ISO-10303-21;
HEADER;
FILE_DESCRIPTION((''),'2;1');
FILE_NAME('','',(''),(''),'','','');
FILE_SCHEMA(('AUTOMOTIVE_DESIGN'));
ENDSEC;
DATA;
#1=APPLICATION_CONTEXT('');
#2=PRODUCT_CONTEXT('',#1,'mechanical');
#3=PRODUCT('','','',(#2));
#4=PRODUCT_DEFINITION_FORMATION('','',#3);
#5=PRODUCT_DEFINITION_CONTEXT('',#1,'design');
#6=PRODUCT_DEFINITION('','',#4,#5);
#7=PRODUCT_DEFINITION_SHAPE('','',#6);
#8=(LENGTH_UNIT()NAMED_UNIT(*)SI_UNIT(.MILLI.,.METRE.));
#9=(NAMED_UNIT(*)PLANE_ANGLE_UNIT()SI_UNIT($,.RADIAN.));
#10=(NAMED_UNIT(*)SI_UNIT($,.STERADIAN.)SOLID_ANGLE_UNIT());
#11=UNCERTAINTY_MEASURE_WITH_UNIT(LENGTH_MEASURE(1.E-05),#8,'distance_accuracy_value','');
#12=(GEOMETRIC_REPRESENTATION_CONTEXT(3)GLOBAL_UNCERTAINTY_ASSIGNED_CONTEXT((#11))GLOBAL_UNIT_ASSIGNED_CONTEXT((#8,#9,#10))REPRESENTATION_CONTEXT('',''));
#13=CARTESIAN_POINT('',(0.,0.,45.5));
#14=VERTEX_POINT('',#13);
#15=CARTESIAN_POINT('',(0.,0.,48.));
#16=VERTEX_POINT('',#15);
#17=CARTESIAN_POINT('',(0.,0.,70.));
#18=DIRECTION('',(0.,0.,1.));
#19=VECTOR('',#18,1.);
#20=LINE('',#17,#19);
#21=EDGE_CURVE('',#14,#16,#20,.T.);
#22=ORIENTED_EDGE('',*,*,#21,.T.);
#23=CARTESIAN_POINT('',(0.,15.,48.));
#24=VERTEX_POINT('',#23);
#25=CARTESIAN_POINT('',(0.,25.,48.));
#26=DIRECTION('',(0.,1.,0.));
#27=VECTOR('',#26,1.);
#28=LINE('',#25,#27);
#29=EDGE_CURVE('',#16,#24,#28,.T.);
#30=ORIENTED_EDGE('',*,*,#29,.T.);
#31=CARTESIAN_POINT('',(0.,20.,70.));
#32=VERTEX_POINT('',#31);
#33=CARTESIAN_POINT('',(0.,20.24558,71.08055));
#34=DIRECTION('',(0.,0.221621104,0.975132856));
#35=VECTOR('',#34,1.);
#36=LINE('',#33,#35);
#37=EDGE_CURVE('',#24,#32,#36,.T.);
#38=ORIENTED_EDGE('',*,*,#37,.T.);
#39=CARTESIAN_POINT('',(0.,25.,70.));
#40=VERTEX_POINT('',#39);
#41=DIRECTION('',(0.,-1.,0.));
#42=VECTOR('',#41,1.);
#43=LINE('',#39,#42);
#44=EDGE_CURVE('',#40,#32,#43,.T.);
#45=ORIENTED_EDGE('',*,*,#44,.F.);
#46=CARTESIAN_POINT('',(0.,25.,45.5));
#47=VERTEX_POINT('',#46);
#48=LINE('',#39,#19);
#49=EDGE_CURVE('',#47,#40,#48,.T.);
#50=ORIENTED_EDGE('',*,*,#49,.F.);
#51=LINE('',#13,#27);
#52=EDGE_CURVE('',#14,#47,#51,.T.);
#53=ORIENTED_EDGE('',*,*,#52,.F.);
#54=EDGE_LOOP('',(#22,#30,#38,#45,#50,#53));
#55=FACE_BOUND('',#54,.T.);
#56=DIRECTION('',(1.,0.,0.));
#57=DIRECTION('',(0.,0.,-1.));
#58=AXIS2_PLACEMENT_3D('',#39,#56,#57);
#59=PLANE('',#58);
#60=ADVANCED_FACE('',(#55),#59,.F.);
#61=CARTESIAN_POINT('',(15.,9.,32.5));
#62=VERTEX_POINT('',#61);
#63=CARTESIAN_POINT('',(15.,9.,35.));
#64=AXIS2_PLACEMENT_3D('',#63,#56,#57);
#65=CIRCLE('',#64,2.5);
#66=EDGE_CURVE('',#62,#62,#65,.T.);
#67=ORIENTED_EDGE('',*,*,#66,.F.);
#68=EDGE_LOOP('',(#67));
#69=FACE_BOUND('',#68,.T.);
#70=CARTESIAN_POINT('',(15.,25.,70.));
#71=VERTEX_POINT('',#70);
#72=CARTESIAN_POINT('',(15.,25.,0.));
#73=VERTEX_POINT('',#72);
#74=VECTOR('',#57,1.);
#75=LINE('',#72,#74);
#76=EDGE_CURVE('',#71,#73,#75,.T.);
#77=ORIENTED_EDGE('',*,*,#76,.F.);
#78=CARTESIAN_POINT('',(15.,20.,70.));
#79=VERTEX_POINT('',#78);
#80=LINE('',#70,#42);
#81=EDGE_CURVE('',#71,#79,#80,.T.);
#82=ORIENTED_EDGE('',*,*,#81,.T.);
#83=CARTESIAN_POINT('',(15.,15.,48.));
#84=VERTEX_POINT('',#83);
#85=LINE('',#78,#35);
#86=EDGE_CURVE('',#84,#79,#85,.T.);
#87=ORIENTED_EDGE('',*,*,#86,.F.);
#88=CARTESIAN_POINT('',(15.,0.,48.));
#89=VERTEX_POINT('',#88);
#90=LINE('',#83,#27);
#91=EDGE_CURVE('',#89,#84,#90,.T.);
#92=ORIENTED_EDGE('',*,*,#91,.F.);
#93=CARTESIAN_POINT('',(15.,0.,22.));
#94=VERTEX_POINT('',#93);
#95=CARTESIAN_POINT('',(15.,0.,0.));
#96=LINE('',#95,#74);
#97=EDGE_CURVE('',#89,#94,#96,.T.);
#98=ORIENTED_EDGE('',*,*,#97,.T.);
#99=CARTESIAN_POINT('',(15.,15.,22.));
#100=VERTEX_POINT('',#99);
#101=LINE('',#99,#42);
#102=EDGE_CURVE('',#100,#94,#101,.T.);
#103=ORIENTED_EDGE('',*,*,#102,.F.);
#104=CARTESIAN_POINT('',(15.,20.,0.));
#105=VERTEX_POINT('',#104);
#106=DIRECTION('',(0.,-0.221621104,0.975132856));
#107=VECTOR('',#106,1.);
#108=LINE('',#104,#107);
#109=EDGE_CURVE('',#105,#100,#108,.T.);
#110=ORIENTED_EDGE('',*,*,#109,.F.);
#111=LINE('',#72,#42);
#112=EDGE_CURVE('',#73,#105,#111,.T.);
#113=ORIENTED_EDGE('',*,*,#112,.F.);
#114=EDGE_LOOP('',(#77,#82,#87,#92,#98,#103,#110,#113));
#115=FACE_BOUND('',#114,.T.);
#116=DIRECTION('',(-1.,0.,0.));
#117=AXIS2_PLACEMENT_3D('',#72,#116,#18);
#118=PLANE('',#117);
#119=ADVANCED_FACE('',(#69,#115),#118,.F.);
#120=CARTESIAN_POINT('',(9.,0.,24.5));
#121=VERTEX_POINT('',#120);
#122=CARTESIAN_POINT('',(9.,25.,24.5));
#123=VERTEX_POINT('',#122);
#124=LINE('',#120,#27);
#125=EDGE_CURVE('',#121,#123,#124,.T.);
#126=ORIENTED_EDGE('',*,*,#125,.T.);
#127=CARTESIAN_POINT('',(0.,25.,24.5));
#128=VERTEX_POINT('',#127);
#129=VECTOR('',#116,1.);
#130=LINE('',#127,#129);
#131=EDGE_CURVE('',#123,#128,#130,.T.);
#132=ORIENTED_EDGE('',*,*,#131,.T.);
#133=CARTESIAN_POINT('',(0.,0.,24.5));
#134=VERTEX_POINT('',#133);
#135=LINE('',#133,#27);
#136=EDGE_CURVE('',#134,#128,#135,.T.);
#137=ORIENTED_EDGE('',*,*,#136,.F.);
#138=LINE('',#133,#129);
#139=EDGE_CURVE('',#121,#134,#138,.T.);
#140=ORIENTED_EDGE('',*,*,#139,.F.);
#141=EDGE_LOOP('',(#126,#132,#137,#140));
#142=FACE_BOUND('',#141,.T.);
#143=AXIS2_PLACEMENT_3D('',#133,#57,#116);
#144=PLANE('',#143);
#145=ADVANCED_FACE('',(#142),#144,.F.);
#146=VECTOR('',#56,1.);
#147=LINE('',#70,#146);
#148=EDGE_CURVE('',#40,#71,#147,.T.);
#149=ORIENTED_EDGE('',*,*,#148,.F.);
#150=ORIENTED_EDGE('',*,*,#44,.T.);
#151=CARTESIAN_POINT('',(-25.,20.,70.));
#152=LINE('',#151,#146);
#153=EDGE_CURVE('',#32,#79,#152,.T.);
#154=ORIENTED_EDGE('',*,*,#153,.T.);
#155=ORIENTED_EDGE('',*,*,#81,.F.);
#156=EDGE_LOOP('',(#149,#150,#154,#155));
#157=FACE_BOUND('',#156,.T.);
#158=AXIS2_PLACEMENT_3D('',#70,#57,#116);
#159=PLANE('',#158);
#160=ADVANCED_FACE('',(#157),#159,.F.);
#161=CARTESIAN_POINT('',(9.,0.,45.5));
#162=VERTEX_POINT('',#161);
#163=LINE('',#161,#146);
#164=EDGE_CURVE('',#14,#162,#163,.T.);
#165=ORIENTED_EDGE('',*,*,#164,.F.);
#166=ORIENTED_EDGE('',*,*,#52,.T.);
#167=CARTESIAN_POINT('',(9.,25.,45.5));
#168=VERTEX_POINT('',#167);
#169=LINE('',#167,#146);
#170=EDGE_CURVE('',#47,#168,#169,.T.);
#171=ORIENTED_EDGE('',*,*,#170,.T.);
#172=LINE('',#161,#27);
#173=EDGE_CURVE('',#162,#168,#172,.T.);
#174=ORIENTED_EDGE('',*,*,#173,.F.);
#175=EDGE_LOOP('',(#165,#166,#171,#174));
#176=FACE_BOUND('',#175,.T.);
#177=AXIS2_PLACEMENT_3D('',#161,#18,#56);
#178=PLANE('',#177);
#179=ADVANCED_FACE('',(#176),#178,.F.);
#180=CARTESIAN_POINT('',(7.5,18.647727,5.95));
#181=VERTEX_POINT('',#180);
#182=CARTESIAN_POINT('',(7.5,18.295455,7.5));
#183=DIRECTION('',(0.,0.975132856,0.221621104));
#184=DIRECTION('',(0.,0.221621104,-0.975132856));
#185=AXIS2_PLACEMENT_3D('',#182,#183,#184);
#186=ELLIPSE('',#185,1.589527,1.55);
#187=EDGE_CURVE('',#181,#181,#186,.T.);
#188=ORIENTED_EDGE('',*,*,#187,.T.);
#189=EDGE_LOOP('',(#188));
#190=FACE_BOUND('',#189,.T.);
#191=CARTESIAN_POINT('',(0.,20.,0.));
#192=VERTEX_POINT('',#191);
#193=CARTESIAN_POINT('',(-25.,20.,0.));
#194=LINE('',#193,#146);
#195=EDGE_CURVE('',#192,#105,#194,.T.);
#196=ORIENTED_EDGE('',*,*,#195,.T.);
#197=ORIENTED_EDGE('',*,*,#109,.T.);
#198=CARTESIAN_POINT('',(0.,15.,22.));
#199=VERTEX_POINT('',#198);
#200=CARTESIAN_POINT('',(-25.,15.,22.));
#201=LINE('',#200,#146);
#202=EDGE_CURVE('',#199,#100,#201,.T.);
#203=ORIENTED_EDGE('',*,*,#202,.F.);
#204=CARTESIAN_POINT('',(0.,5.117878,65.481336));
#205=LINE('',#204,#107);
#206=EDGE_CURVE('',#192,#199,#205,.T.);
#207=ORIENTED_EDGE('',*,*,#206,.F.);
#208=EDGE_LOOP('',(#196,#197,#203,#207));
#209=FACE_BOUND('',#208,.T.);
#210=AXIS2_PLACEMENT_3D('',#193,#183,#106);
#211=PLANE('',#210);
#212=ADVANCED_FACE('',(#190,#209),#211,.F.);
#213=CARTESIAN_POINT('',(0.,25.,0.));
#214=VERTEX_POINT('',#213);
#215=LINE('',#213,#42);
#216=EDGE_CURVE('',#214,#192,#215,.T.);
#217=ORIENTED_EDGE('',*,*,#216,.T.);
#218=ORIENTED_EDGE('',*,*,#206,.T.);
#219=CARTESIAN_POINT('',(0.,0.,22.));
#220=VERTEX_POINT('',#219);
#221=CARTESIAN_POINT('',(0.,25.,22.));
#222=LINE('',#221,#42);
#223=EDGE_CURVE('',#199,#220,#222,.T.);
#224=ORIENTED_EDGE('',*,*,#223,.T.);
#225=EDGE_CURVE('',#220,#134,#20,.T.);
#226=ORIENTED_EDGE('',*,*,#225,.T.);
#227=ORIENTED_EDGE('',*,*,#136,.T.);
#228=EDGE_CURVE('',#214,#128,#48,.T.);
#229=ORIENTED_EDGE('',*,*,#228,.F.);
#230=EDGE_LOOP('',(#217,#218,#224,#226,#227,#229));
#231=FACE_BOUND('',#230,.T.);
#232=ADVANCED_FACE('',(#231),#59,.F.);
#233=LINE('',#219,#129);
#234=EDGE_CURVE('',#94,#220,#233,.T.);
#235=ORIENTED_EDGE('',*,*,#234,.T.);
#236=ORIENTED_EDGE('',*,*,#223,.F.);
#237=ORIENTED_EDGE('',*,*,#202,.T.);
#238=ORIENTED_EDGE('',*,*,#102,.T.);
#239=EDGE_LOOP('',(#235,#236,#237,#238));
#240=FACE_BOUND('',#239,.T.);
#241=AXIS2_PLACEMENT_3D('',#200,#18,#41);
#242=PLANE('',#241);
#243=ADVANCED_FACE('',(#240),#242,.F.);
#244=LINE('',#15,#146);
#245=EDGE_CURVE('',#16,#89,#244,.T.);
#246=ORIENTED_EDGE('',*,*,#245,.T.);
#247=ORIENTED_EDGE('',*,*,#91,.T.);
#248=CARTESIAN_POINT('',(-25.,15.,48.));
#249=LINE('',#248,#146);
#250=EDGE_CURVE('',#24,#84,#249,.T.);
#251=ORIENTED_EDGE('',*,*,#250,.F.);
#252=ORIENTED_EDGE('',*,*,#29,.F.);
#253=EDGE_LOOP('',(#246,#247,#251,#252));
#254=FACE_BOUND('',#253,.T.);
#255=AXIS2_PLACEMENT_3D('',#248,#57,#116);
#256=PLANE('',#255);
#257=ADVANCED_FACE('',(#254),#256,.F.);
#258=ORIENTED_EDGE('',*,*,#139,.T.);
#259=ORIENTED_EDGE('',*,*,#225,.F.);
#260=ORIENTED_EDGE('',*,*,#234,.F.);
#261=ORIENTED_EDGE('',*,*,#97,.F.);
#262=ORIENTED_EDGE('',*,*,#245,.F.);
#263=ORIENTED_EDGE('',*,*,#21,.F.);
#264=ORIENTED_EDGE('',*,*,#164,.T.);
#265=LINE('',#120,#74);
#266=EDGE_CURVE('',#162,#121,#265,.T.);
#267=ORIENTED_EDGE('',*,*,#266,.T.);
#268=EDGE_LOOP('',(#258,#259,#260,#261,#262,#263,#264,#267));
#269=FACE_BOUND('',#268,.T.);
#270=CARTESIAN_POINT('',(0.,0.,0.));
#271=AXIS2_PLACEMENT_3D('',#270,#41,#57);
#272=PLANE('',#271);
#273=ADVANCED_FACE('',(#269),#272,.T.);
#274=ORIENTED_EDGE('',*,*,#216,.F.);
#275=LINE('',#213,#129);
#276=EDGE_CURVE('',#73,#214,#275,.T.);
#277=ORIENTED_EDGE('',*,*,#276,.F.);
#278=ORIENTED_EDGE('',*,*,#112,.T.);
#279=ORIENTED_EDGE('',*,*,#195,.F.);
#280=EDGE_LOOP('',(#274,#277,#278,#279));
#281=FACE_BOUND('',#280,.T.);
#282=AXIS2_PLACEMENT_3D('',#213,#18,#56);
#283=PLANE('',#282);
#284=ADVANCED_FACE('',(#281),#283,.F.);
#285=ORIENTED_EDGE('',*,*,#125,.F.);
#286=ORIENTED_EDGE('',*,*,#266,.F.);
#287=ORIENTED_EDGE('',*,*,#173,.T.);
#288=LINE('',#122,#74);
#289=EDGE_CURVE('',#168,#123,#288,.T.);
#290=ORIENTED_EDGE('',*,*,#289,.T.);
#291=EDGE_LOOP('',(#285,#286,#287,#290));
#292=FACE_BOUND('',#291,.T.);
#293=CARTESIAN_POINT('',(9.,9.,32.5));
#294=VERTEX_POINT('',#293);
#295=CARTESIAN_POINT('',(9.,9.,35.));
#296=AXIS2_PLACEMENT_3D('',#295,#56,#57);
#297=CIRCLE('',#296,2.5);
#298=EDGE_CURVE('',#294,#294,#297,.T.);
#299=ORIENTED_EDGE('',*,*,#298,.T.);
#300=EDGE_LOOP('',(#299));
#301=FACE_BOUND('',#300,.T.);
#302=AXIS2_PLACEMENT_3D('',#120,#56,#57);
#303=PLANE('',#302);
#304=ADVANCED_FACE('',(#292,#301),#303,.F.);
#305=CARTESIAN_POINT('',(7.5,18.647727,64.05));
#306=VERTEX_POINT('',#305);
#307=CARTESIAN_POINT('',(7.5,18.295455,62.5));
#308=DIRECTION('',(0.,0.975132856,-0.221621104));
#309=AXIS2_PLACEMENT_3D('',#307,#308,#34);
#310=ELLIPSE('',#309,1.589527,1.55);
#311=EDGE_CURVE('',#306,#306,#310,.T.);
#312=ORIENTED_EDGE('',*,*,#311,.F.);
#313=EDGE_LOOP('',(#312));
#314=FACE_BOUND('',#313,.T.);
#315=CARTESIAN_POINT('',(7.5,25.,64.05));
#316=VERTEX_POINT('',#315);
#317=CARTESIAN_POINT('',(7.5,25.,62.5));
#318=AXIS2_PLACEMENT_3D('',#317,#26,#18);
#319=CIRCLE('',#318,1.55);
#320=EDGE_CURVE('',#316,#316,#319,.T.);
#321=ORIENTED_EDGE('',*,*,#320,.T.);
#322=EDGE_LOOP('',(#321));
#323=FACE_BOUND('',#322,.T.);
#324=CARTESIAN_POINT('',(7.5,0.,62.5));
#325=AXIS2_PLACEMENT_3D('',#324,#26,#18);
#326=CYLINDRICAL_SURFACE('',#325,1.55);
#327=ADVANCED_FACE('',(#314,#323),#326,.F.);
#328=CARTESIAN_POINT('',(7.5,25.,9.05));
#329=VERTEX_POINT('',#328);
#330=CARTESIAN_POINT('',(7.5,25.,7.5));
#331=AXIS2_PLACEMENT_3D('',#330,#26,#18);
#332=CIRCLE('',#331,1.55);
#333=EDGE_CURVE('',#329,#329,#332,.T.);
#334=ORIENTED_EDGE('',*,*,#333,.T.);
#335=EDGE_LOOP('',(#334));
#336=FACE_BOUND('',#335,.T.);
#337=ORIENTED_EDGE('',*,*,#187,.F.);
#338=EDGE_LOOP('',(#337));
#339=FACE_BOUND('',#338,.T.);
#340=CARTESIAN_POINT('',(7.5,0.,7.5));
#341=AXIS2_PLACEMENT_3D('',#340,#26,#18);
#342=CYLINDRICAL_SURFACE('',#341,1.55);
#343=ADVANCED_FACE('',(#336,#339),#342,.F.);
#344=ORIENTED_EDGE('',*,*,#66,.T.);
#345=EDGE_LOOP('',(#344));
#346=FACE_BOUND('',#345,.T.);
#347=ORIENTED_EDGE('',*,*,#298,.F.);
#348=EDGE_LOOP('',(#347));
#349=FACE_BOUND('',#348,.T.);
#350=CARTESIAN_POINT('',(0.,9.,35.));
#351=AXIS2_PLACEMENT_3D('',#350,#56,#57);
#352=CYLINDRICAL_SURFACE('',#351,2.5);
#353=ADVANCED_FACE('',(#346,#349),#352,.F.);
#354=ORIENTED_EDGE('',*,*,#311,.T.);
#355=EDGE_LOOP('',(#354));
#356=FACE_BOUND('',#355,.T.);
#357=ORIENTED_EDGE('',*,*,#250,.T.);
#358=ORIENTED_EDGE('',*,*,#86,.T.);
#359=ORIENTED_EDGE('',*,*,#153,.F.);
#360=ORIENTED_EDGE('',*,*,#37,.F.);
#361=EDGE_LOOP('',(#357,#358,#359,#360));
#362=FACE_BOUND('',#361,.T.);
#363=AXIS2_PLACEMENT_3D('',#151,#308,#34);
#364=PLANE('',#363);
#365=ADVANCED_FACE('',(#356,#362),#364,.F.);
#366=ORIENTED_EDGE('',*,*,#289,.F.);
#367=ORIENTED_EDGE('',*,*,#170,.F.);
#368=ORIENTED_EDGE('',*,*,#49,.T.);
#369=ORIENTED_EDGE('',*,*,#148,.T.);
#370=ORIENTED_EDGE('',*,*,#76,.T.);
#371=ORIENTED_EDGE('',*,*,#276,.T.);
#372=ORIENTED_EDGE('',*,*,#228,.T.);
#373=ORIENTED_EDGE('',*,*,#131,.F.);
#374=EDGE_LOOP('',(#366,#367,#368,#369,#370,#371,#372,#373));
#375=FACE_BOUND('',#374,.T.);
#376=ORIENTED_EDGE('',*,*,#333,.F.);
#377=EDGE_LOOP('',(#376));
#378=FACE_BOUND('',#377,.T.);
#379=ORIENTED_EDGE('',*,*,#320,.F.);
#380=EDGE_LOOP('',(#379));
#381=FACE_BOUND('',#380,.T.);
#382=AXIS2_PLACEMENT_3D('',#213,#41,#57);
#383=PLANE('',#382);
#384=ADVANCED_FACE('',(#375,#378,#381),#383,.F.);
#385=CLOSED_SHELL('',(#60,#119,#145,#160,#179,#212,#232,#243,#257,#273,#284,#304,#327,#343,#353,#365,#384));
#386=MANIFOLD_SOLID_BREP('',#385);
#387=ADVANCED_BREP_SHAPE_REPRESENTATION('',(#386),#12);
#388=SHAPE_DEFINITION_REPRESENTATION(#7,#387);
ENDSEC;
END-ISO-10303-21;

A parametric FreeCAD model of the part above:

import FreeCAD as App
import Part
import Sketcher
from FreeCAD import Vector

doc = App.newDocument("Part")
body = doc.addObject("PartDesign::Body", "Body")

# Sketch on XZ plane
sketch1 = body.newObject("Sketcher::SketchObject", "Sketch")
sketch1.AttachmentSupport = (doc.getObject("XZ_Plane"), [""])
sketch1.MapMode = "FlatFace"
sketch1.addGeometry([
    Part.LineSegment(Vector(0, 0, 0), Vector(0, 70, 0)),
    Part.LineSegment(Vector(0, 70, 0), Vector(15, 70, 0)),
    Part.LineSegment(Vector(15, 70, 0), Vector(15, 0, 0)),
    Part.LineSegment(Vector(15, 0, 0), Vector(0, 0, 0)),
], False)
sketch1.addConstraint([
    Sketcher.Constraint("Coincident", 0, 2, 1, 1),
    Sketcher.Constraint("Coincident", 1, 2, 2, 1),
    Sketcher.Constraint("Coincident", 2, 2, 3, 1),
    Sketcher.Constraint("Coincident", 3, 2, 0, 1),
    Sketcher.Constraint("Vertical", 0),
    Sketcher.Constraint("Horizontal", 1),
    Sketcher.Constraint("Vertical", 2),
    Sketcher.Constraint("Horizontal", 3),
    Sketcher.Constraint("Coincident", 3, 2, -1, 1),
    Sketcher.Constraint("DistanceX", 1, 1, 1, 2, 15.0),
    Sketcher.Constraint("DistanceY", 0, 1, 0, 2, 70.0),
])
pad1 = body.newObject("PartDesign::Pad", "Pad")
pad1.Profile = sketch1
pad1.Length = 25
pad1.Reversed = True

# Sketch on YZ plane
sketch2 = body.newObject("Sketcher::SketchObject", "Sketch001")
sketch2.AttachmentSupport = (doc.getObject("YZ_Plane"), [""])
sketch2.MapMode = "FlatFace"
sketch2.AttachmentOffset = App.Placement(Vector(0, 0, 15), App.Rotation())
sketch2.addGeometry([
    Part.LineSegment(Vector(15, 48, 0), Vector(20, 70, 0)),  # 0
    Part.LineSegment(Vector(20, 70, 0), Vector(0, 70, 0)),  # 1
    Part.LineSegment(Vector(0, 70, 0), Vector(0, 48, 0)),  # 2
    Part.LineSegment(Vector(0, 48, 0), Vector(15, 48, 0)),  # 3
    Part.LineSegment(Vector(20, 0, 0), Vector(15, 22, 0)),  # 4
    Part.LineSegment(Vector(15, 22, 0), Vector(0, 22, 0)),  # 5
    Part.LineSegment(Vector(0, 22, 0), Vector(0, 0, 0)),  # 6
    Part.LineSegment(Vector(0, 0, 0), Vector(20, 0, 0)),  # 7
], False)
sketch2.addConstraint([
    Sketcher.Constraint("Coincident", 0, 2, 1, 1),
    Sketcher.Constraint("Coincident", 1, 2, 2, 1),
    Sketcher.Constraint("Coincident", 2, 2, 3, 1),
    Sketcher.Constraint("Coincident", 3, 2, 0, 1),
    Sketcher.Constraint("Coincident", 4, 2, 5, 1),
    Sketcher.Constraint("Coincident", 5, 2, 6, 1),
    Sketcher.Constraint("Coincident", 6, 2, 7, 1),
    Sketcher.Constraint("Coincident", 7, 2, 4, 1),
    Sketcher.Constraint("Horizontal", 1),
    Sketcher.Constraint("Vertical", 2),
    Sketcher.Constraint("Horizontal", 3),
    Sketcher.Constraint("Horizontal", 5),
    Sketcher.Constraint("Vertical", 6),
    Sketcher.Constraint("Horizontal", 7),
    Sketcher.Constraint("Coincident", 6, 2, -1, 1),
    Sketcher.Constraint("PointOnObject", 1, 2, -2),
    Sketcher.Constraint("Vertical", 3, 2, 4, 2),
    Sketcher.Constraint("Vertical", 0, 2, 7, 2),
    Sketcher.Constraint("Equal", 2, 6),
    Sketcher.Constraint("DistanceX", 1, 2, 1, 1, 20.0),
    Sketcher.Constraint("DistanceX", 3, 1, 3, 2, 15.0),
    Sketcher.Constraint("DistanceY", 2, 2, 2, 1, 22.0),
    Sketcher.Constraint("DistanceY", -1, 1, 0, 2, 70.0),
])
pocket1 = body.newObject("PartDesign::Pocket", "Pocket")
pocket1.Profile = sketch2
pocket1.Length = 40

# Sketch on XZ plane
sketch3 = body.newObject("Sketcher::SketchObject", "Sketch002")
sketch3.AttachmentSupport = (doc.getObject("XZ_Plane"), [""])
sketch3.MapMode = "FlatFace"
sketch3.AttachmentOffset = App.Placement(Vector(0, 0, -25), App.Rotation())
sketch3.addGeometry([
    Part.LineSegment(Vector(0, 24, 0), Vector(0, 46, 0)),
    Part.LineSegment(Vector(0, 46, 0), Vector(9, 46, 0)),
    Part.LineSegment(Vector(9, 46, 0), Vector(9, 24, 0)),
    Part.LineSegment(Vector(9, 24, 0), Vector(0, 24, 0)),
], False)
sketch3.addConstraint([
    Sketcher.Constraint("Coincident", 0, 2, 1, 1),
    Sketcher.Constraint("Coincident", 1, 2, 2, 1),
    Sketcher.Constraint("Coincident", 2, 2, 3, 1),
    Sketcher.Constraint("Coincident", 3, 2, 0, 1),
    Sketcher.Constraint("Vertical", 0),
    Sketcher.Constraint("Horizontal", 1),
    Sketcher.Constraint("Vertical", 2),
    Sketcher.Constraint("Horizontal", 3),
    Sketcher.Constraint("PointOnObject", 0, 2, -2),
    Sketcher.Constraint("DistanceX", 1, 1, 1, 2, 9.0),
    Sketcher.Constraint("DistanceY", 0, 1, 0, 2, 21.0),
    Sketcher.Constraint("DistanceY", -1, 1, 0, 2, 45.5),
])
pocket2 = body.newObject("PartDesign::Pocket", "Pocket001")
pocket2.Profile = sketch3
pocket2.Type = "ThroughAll"
pocket2.Reversed = True

# Sketch on XZ plane
sketch4 = body.newObject("Sketcher::SketchObject", "Sketch003")
sketch4.AttachmentSupport = (doc.getObject("XZ_Plane"), [""])
sketch4.MapMode = "FlatFace"
sketch4.AttachmentOffset = App.Placement(Vector(0, 0, -25), App.Rotation())
sketch4.addGeometry([
    Part.Circle(Vector(7.5, 7.5, 0), Vector(0, 0, 1), 1.6),
    Part.Circle(Vector(7.5, 62.5, 0), Vector(0, 0, 1), 1.6),
], False)
sketch4.addConstraint([
    Sketcher.Constraint("Equal", 0, 1),
    Sketcher.Constraint("Vertical", 0, 3, 1, 3),
    Sketcher.Constraint("Diameter", 0, 3.1),
    Sketcher.Constraint("DistanceY", 0, 3, 1, 3, 55.0),
    Sketcher.Constraint("DistanceX", -1, 1, 0, 3, 7.5),
    Sketcher.Constraint("DistanceY", -1, 1, 0, 3, 7.5),
])
pocket3 = body.newObject("PartDesign::Pocket", "Pocket002")
pocket3.Profile = sketch4
pocket3.Type = "ThroughAll"
pocket3.Reversed = True

# Sketch on YZ plane
sketch5 = body.newObject("Sketcher::SketchObject", "Sketch004")
sketch5.AttachmentSupport = (doc.getObject("YZ_Plane"), [""])
sketch5.MapMode = "FlatFace"
sketch5.AttachmentOffset = App.Placement(Vector(0, 0, 15), App.Rotation())
sketch5.addGeometry(Part.Circle(Vector(9, 35, 0), Vector(0, 0, 1), 2.5), False)
sketch5.addConstraint([
    Sketcher.Constraint("Diameter", 0, 5.0),
    Sketcher.Constraint("DistanceX", -1, 1, 0, 3, 9.0),
    Sketcher.Constraint("DistanceY", -1, 1, 0, 3, 35.0),
])
pocket4 = body.newObject("PartDesign::Pocket", "Pocket003")
pocket4.Profile = sketch5
pocket4.Type = "ThroughAll"

doc.recompute()
